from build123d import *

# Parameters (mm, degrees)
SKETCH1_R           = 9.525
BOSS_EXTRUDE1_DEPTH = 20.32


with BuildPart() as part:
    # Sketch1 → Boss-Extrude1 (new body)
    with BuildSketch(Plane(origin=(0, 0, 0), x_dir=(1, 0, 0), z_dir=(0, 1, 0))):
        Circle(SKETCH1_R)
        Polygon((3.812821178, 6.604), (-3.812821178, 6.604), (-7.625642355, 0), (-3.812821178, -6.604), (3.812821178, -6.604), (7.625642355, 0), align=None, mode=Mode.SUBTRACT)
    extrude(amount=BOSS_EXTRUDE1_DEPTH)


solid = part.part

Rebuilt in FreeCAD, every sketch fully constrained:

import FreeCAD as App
import Part
import Sketcher
Q = App.Units.Quantity


def add_polygon(sketch, points):
    """Adds a closed chain of lines whose ends are joined by coincident constraints."""
    first, n = sketch.GeometryCount, len(points)
    for a, b in zip(points, points[1:] + points[:1]):
        sketch.addGeometry(Part.LineSegment(App.Vector(*a, 0), App.Vector(*b, 0)), False)
    for i in range(n):
        sketch.addConstraint(Sketcher.Constraint("Coincident", first + i, 2, first + (i + 1) % n, 1))

doc = App.newDocument("Part")
body = doc.addObject("PartDesign::Body", "Body")

sketch1 = body.newObject("Sketcher::SketchObject", "Sketch")
sketch1.AttachmentSupport = (doc.getObject("XZ_Plane"), [""])
sketch1.MapMode = "FlatFace"
sketch1.addGeometry(Part.Circle(App.Vector(0, 0, 0), App.Vector(0, 0, 1), 10), False)
add_polygon(sketch1, [(-4, -7), (4, -7), (8, 0), (4, 7), (-4, 7), (-8, 0)])
sketch1.addConstraint(Sketcher.Constraint("Horizontal", 1))
sketch1.addConstraint(Sketcher.Constraint("Horizontal", 4))
sketch1.addConstraint(Sketcher.Constraint("Coincident", 0, 3, -1, 1))
sketch1.addConstraint(Sketcher.Constraint("Symmetric", 1, 2, 4, 2, -1, 1))
sketch1.addConstraint(Sketcher.Constraint("Symmetric", 2, 2, 5, 2, -1, 1))
sketch1.addConstraint(Sketcher.Constraint("PointOnObject", 2, 2, -1))
sketch1.addConstraint(Sketcher.Constraint("Parallel", 3, 6))
sketch1.addConstraint(Sketcher.Constraint("Vertical", 1, 2, 3, 2))
sketch1.addConstraint(Sketcher.Constraint("Diameter", 0, Q("0.75 in")))
sketch1.addConstraint(Sketcher.Constraint("Angle", 2, Q("60 deg")))
sketch1.addConstraint(Sketcher.Constraint("DistanceY", 1, 2, -1, 1, Q("0.26 in")))
sketch1.addConstraint(Sketcher.Constraint("DistanceX", 1, 1, 1, 2, Q("7.625642 mm")))
pad1 = body.newObject("PartDesign::Pad", "Pad")
pad1.Profile = sketch1
pad1.Length = Q("0.8 in")
pad1.Reversed = True

doc.recompute()
